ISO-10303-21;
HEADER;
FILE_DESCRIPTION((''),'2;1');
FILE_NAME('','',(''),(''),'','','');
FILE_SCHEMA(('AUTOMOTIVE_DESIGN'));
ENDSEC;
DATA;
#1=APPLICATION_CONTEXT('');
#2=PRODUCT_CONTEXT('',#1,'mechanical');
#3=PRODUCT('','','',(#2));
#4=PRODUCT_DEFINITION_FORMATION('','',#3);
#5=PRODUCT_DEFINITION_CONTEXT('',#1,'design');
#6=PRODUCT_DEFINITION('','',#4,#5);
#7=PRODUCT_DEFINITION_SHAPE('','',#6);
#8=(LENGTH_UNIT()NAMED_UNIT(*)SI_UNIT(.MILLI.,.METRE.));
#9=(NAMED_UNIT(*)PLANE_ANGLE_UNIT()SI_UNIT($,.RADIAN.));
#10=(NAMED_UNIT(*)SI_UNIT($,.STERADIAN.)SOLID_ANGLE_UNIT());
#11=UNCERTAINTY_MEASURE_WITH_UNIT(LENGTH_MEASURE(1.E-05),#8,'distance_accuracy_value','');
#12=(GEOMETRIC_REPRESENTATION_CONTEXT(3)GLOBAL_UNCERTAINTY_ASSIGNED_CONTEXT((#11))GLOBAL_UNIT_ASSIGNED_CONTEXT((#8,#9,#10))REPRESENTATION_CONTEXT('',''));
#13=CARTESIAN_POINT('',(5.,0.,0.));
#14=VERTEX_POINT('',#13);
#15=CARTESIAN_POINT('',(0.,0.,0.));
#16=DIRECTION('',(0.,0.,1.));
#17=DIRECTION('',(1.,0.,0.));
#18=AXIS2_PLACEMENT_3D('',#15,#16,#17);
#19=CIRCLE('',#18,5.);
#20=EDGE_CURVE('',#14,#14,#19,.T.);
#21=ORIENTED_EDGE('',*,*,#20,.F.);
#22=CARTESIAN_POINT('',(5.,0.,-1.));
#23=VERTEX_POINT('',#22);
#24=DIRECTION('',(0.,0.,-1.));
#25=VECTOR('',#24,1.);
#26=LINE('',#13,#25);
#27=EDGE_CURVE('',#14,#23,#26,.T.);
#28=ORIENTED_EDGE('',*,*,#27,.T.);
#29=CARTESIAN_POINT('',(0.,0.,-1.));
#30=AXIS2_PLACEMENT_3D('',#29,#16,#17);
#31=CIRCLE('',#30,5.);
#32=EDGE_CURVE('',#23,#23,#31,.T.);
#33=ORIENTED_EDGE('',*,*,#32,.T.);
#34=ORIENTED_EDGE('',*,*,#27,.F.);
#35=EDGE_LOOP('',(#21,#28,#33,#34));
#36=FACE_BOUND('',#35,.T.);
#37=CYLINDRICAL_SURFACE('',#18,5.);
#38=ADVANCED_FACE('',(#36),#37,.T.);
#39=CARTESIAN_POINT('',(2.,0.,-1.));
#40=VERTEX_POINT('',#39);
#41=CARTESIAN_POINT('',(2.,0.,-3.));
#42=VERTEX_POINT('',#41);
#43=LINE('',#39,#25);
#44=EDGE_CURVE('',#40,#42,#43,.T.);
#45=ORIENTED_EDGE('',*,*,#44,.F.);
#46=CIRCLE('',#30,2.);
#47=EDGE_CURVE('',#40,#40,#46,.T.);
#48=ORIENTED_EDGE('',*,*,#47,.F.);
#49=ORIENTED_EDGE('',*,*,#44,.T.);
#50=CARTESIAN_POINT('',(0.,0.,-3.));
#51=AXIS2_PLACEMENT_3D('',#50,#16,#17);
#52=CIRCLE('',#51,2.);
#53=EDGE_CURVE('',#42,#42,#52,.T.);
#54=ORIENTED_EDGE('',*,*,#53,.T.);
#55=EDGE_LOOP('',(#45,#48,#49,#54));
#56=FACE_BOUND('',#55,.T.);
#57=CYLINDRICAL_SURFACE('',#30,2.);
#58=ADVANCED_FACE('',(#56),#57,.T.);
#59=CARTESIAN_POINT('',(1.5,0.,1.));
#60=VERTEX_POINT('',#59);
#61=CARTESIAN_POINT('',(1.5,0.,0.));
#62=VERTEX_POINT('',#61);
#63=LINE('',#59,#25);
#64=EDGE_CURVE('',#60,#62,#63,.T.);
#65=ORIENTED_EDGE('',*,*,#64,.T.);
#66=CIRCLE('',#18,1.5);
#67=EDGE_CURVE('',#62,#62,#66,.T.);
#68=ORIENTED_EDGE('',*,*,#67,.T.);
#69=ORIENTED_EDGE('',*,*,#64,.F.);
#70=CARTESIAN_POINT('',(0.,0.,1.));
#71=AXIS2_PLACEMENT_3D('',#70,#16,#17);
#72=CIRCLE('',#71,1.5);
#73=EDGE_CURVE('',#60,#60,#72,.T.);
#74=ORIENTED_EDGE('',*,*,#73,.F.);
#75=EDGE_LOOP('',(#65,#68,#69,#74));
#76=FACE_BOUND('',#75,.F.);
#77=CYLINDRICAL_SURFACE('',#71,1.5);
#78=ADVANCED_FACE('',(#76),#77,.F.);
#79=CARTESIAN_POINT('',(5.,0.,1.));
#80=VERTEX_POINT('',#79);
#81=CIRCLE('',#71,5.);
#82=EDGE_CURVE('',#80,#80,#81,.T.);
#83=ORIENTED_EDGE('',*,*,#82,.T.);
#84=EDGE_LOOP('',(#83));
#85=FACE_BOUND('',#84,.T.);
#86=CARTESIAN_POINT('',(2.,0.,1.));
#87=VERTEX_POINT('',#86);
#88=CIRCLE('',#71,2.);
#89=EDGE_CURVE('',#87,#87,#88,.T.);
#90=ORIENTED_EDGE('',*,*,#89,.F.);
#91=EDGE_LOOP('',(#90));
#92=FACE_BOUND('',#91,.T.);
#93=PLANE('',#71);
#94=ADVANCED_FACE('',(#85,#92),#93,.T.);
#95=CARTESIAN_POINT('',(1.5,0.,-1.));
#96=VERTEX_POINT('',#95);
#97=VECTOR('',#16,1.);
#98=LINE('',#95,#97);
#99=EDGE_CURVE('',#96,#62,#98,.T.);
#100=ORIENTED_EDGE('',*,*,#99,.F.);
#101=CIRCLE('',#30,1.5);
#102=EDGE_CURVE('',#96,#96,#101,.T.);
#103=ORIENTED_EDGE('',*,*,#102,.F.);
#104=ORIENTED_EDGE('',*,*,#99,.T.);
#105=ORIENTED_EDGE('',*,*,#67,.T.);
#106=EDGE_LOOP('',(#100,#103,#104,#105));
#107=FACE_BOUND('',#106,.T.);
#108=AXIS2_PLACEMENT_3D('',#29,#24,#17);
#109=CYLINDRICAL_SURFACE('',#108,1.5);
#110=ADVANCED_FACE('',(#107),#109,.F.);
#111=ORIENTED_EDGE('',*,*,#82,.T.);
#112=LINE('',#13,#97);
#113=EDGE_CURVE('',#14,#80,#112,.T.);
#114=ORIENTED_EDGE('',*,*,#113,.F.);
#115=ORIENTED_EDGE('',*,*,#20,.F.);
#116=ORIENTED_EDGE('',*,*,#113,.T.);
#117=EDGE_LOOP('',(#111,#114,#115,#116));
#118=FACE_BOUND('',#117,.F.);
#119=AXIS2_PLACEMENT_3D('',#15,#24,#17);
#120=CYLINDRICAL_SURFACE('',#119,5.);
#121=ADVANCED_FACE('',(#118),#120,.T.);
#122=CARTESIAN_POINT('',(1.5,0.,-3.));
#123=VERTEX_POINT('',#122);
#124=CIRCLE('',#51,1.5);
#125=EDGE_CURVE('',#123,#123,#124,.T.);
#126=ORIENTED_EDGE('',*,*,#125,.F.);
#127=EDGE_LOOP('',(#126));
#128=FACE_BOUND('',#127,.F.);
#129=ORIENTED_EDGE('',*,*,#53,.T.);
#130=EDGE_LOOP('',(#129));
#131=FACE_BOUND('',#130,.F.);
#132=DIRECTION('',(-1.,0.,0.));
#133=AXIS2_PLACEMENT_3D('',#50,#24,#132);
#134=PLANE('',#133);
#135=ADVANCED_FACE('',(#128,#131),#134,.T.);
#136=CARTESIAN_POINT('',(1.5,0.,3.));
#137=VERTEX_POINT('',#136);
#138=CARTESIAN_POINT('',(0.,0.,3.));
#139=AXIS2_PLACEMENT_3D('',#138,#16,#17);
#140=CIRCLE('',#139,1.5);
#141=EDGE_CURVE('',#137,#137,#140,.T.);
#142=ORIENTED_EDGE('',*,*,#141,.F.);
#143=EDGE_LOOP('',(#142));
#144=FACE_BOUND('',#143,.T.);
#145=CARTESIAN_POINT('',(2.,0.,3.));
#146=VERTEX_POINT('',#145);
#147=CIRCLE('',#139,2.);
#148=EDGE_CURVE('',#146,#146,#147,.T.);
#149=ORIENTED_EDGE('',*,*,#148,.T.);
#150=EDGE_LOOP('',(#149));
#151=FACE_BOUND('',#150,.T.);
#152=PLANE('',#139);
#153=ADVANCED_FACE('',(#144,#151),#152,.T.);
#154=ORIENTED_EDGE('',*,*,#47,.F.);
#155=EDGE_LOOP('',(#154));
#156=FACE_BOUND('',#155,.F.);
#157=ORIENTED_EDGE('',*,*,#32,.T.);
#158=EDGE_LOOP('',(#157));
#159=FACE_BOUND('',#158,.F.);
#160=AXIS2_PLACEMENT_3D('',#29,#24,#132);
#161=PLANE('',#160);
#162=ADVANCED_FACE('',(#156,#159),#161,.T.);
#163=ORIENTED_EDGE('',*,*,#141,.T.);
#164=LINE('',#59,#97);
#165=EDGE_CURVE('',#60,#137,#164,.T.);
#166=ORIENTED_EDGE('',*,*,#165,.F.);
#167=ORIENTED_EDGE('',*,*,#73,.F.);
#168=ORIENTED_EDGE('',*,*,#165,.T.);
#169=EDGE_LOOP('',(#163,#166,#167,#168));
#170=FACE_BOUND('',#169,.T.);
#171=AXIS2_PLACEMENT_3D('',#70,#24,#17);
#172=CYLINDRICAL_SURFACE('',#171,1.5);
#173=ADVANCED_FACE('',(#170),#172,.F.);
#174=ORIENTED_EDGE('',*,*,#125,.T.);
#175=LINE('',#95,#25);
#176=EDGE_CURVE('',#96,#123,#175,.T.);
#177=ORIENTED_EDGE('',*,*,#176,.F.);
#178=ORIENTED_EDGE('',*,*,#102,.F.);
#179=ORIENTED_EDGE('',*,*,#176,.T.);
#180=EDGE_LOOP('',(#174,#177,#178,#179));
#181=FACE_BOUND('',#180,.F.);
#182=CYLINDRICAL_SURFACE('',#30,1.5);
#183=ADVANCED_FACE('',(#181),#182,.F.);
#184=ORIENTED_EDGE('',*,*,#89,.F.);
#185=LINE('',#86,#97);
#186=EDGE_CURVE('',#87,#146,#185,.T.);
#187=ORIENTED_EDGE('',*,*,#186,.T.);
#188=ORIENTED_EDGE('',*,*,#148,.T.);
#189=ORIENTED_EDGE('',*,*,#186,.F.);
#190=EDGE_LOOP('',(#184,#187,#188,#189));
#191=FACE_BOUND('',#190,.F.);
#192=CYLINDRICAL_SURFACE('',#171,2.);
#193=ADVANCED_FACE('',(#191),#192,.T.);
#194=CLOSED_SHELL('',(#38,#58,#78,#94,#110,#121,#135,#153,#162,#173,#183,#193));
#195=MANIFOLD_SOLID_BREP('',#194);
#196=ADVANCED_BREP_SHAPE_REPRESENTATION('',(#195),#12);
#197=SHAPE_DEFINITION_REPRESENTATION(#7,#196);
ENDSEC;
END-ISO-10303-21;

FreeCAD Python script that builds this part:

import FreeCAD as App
import Part
import Sketcher
from FreeCAD import Vector
Q = App.Units.Quantity

doc = App.newDocument("Part")
body = doc.addObject("PartDesign::Body", "Body")

sketch1 = body.newObject("Sketcher::SketchObject", "Sketch")
sketch1.AttachmentSupport = (doc.getObject("XY_Plane"), [""])
sketch1.MapMode = "FlatFace"
sketch1.addGeometry(Part.Circle(Vector(0, 0, 0), Vector(0, 0, 1), 5), False)
sketch1.addConstraint([
    Sketcher.Constraint("Coincident", 0, 3, -1, 1),
    Sketcher.Constraint("Diameter", 0, Q("10 mm")),
])
pad1 = body.newObject("PartDesign::Pad", "Pad")
pad1.Profile = sketch1
pad1.Length = 1

sketch2 = body.newObject("Sketcher::SketchObject", "Sketch001")
sketch2.AttachmentSupport = (doc.getObject("XY_Plane"), [""])
sketch2.MapMode = "FlatFace"
sketch2.AttachmentOffset = App.Placement(Vector(0, 0, 1), App.Rotation())
sketch2.addGeometry(Part.Circle(Vector(0, 0, 0), Vector(0, 0, 1), 1.5), False)
sketch2.addConstraint([
    Sketcher.Constraint("Coincident", 0, 3, -1, 1),
    Sketcher.Constraint("Diameter", 0, Q("3 mm")),
])
pocket1 = body.newObject("PartDesign::Pocket", "Pocket")
pocket1.Profile = sketch2
pocket1.Length = 1.5

sketch3 = body.newObject("Sketcher::SketchObject", "Sketch002")
sketch3.AttachmentSupport = (doc.getObject("XY_Plane"), [""])
sketch3.MapMode = "FlatFace"
sketch3.AttachmentOffset = App.Placement(Vector(0, 0, 1), App.Rotation())
sketch3.addGeometry([
    Part.Circle(Vector(0, 0, 0), Vector(0, 0, 1), 2),
    Part.Circle(Vector(0, 0, 0), Vector(0, 0, 1), 1.5),
], False)
sketch3.addConstraint([
    Sketcher.Constraint("Coincident", 0, 3, -1, 1),
    Sketcher.Constraint("Coincident", 1, 3, -1, 1),
    Sketcher.Constraint("Diameter", 0, Q("4 mm")),
    Sketcher.Constraint("Diameter", 1, Q("3 mm")),
])
pad2 = body.newObject("PartDesign::Pad", "Pad001")
pad2.Profile = sketch3
pad2.Length = 2
doc.recompute()

mirrored = body.newObject("PartDesign::Mirrored", "Mirrored")
mirrored.TransformMode = "Transform body"
mirrored.MirrorPlane = (doc.getObject("XY_Plane"), [""])
body.Tip = mirrored

doc.recompute()
